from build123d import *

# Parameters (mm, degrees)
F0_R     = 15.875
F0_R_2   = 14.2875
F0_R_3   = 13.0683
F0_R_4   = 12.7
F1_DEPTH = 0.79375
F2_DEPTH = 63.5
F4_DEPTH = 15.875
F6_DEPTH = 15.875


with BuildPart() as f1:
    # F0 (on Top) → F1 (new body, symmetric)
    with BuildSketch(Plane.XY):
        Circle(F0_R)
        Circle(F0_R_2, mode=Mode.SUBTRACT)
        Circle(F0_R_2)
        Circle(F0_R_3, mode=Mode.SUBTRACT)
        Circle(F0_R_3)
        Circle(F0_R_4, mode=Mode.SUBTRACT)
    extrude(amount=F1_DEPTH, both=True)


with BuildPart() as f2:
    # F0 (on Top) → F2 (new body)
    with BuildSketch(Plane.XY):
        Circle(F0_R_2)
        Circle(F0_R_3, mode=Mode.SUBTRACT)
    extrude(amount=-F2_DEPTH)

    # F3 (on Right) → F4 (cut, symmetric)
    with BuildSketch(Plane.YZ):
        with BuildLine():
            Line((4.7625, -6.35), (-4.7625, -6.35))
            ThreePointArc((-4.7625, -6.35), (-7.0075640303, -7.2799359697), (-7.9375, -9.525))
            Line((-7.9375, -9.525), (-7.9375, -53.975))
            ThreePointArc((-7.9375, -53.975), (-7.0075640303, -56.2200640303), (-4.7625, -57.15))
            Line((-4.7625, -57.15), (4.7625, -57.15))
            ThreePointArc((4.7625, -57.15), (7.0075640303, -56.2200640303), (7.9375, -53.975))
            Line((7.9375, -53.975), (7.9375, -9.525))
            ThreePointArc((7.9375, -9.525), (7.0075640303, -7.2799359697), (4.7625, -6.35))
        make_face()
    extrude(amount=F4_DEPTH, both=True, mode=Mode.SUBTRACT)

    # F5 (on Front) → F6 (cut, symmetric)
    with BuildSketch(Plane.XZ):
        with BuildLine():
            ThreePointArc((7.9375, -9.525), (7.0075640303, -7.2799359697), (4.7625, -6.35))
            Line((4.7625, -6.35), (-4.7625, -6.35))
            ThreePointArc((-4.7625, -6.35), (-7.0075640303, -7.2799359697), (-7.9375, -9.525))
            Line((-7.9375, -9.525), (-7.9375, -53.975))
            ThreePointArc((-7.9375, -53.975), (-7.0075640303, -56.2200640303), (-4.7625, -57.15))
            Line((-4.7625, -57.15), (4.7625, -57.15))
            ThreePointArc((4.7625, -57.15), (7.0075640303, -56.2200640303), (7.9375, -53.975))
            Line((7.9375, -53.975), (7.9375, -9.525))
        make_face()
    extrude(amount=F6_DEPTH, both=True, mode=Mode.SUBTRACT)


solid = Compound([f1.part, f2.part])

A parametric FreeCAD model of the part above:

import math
import FreeCAD as App
import Part
import Sketcher

V = App.Vector
Q = App.Units.Quantity

doc = App.newDocument("Part")
body = doc.addObject("PartDesign::Body", "Body")

# Sketch on XY plane
sketch1 = body.newObject("Sketcher::SketchObject", "Sketch")
sketch1.AttachmentSupport = (doc.getObject("XY_Plane"), [""])
sketch1.MapMode = "FlatFace"
sketch1.addGeometry(Part.Circle(V(0, 0, 0), V(0, 0, 1), 16), False)
sketch1.addGeometry(Part.Circle(V(0, 0, 0), V(0, 0, 1), 13), False)
sketch1.addConstraint(Sketcher.Constraint("Coincident", 0, 3, -1, 1))
sketch1.addConstraint(Sketcher.Constraint("Coincident", 1, 3, -1, 1))
sketch1.addConstraint(Sketcher.Constraint("Diameter", 1, Q("1 in")))
sketch1.addConstraint(Sketcher.Constraint("Diameter", 0, Q("1.25 in")))
pad1 = body.newObject("PartDesign::Pad", "Pad")
pad1.Profile = sketch1
pad1.Length = Q("0.0625 in")
pad1.Midplane = True
body2 = doc.addObject("PartDesign::Body", "Body001")

# Sketch on XY plane
sketch2 = body2.newObject("Sketcher::SketchObject", "Sketch001")
sketch2.AttachmentSupport = (doc.getObject("XY_Plane001"), [""])
sketch2.MapMode = "FlatFace"
sketch2.addGeometry(Part.Circle(V(0, 0, 0), V(0, 0, 1), 14), False)
sketch2.addGeometry(Part.Circle(V(0, 0, 0), V(0, 0, 1), 13), False)
sketch2.addConstraint(Sketcher.Constraint("Coincident", 0, 3, -1, 1))
sketch2.addConstraint(Sketcher.Constraint("Coincident", 1, 3, -1, 1))
sketch2.addConstraint(Sketcher.Constraint("Diameter", 0, Q("1.125 in")))
sketch2.addConstraint(Sketcher.Constraint("Diameter", 1, Q("1.029 in")))
pad2 = body2.newObject("PartDesign::Pad", "Pad001")
pad2.Profile = sketch2
pad2.Length = Q("2.5 in")
pad2.Reversed = True

# Sketch on YZ plane
sketch3 = body2.newObject("Sketcher::SketchObject", "Sketch002")
sketch3.AttachmentSupport = (doc.getObject("YZ_Plane001"), [""])
sketch3.MapMode = "FlatFace"
sketch3.addGeometry(Part.LineSegment(V(4.8, -6.3, 0), V(-4.8, -6.3, 0)), False)
sketch3.addGeometry(Part.ArcOfCircle(Part.Circle(V(-4.8, -9.5, 0), V(0, 0, 1), 3.2), math.radians(90), math.radians(180)), False)
sketch3.addGeometry(Part.LineSegment(V(-7.9, -9.5, 0), V(-7.9, -54, 0)), False)
sketch3.addGeometry(Part.ArcOfCircle(Part.Circle(V(-4.8, -54, 0), V(0, 0, 1), 3.2), math.radians(180), math.radians(270)), False)
sketch3.addGeometry(Part.LineSegment(V(-4.8, -57.1, 0), V(4.8, -57.1, 0)), False)
sketch3.addGeometry(Part.ArcOfCircle(Part.Circle(V(4.8, -54, 0), V(0, 0, 1), 3.2), math.radians(-90), math.radians(0)), False)
sketch3.addGeometry(Part.LineSegment(V(7.9, -54, 0), V(7.9, -9.5, 0)), False)
sketch3.addGeometry(Part.ArcOfCircle(Part.Circle(V(4.8, -9.5, 0), V(0, 0, 1), 3.2), math.radians(0), math.radians(90)), False)
sketch3.addConstraint(Sketcher.Constraint("Tangent", 0, 2, 1, 1))
sketch3.addConstraint(Sketcher.Constraint("Tangent", 1, 2, 2, 1))
sketch3.addConstraint(Sketcher.Constraint("Tangent", 2, 2, 3, 1))
sketch3.addConstraint(Sketcher.Constraint("Tangent", 3, 2, 4, 1))
sketch3.addConstraint(Sketcher.Constraint("Tangent", 4, 2, 5, 1))
sketch3.addConstraint(Sketcher.Constraint("Tangent", 5, 2, 6, 1))
sketch3.addConstraint(Sketcher.Constraint("Tangent", 6, 2, 7, 1))
sketch3.addConstraint(Sketcher.Constraint("Tangent", 7, 2, 0, 1))
sketch3.addConstraint(Sketcher.Constraint("Horizontal", 0))
sketch3.addConstraint(Sketcher.Constraint("Vertical", 2))
sketch3.addConstraint(Sketcher.Constraint("Horizontal", 4))
sketch3.addConstraint(Sketcher.Constraint("Vertical", 6))
sketch3.addConstraint(Sketcher.Constraint("Equal", 1, 3))
sketch3.addConstraint(Sketcher.Constraint("Equal", 3, 5))
sketch3.addConstraint(Sketcher.Constraint("Equal", 5, 7))
sketch3.addConstraint(Sketcher.Constraint("Radius", 1, Q("0.125 in")))
sketch3.addConstraint(Sketcher.Constraint("DistanceY", 2, 2, 2, 1, Q("1.75 in")))
sketch3.addConstraint(Sketcher.Constraint("DistanceX", 1, 2, 7, 3, Q("0.5 in")))
sketch3.addConstraint(Sketcher.Constraint("DistanceY", 0, 2, -1, 1, Q("0.25 in")))
sketch3.addConstraint(Sketcher.Constraint("DistanceX", 1, 3, -1, 1, Q("0.1875 in")))
pocket1 = body2.newObject("PartDesign::Pocket", "Pocket")
pocket1.Profile = sketch3
pocket1.Length = Q("1.25 in")
pocket1.Midplane = True

# Sketch on XZ plane
sketch4 = body2.newObject("Sketcher::SketchObject", "Sketch003")
sketch4.AttachmentSupport = (doc.getObject("XZ_Plane001"), [""])
sketch4.MapMode = "FlatFace"
sketch4.addGeometry(Part.ArcOfCircle(Part.Circle(V(4.8, -9.5, 0), V(0, 0, 1), 3.2), math.radians(0), math.radians(90)), False)
sketch4.addGeometry(Part.LineSegment(V(4.8, -6.3, 0), V(-4.8, -6.3, 0)), False)
sketch4.addGeometry(Part.ArcOfCircle(Part.Circle(V(-4.8, -9.5, 0), V(0, 0, 1), 3.2), math.radians(90), math.radians(180)), False)
sketch4.addGeometry(Part.LineSegment(V(-7.9, -9.5, 0), V(-7.9, -54, 0)), False)
sketch4.addGeometry(Part.ArcOfCircle(Part.Circle(V(-4.8, -54, 0), V(0, 0, 1), 3.2), math.radians(180), math.radians(270)), False)
sketch4.addGeometry(Part.LineSegment(V(-4.8, -57.1, 0), V(4.8, -57.1, 0)), False)
sketch4.addGeometry(Part.ArcOfCircle(Part.Circle(V(4.8, -54, 0), V(0, 0, 1), 3.2), math.radians(-90), math.radians(0)), False)
sketch4.addGeometry(Part.LineSegment(V(7.9, -54, 0), V(7.9, -9.5, 0)), False)
sketch4.addConstraint(Sketcher.Constraint("Tangent", 0, 2, 1, 1))
sketch4.addConstraint(Sketcher.Constraint("Tangent", 1, 2, 2, 1))
sketch4.addConstraint(Sketcher.Constraint("Tangent", 2, 2, 3, 1))
sketch4.addConstraint(Sketcher.Constraint("Tangent", 3, 2, 4, 1))
sketch4.addConstraint(Sketcher.Constraint("Tangent", 4, 2, 5, 1))
sketch4.addConstraint(Sketcher.Constraint("Tangent", 5, 2, 6, 1))
sketch4.addConstraint(Sketcher.Constraint("Tangent", 6, 2, 7, 1))
sketch4.addConstraint(Sketcher.Constraint("Tangent", 7, 2, 0, 1))
sketch4.addConstraint(Sketcher.Constraint("Horizontal", 1))
sketch4.addConstraint(Sketcher.Constraint("Vertical", 3))
sketch4.addConstraint(Sketcher.Constraint("Horizontal", 5))
sketch4.addConstraint(Sketcher.Constraint("Vertical", 7))
sketch4.addConstraint(Sketcher.Constraint("Equal", 0, 2))
sketch4.addConstraint(Sketcher.Constraint("Equal", 2, 4))
sketch4.addConstraint(Sketcher.Constraint("Equal", 4, 6))
sketch4.addConstraint(Sketcher.Constraint("Radius", 0, Q("0.125 in")))
sketch4.addConstraint(Sketcher.Constraint("DistanceY", 3, 2, 3, 1, Q("1.75 in")))
sketch4.addConstraint(Sketcher.Constraint("DistanceX", 2, 2, 0, 3, Q("0.5 in")))
sketch4.addConstraint(Sketcher.Constraint("DistanceY", 0, 2, -1, 1, Q("0.25 in")))
sketch4.addConstraint(Sketcher.Constraint("DistanceX", -1, 1, 0, 3, Q("0.1875 in")))
pocket2 = body2.newObject("PartDesign::Pocket", "Pocket001")
pocket2.Profile = sketch4
pocket2.Length = Q("1.25 in")
pocket2.Midplane = True

doc.recompute()
